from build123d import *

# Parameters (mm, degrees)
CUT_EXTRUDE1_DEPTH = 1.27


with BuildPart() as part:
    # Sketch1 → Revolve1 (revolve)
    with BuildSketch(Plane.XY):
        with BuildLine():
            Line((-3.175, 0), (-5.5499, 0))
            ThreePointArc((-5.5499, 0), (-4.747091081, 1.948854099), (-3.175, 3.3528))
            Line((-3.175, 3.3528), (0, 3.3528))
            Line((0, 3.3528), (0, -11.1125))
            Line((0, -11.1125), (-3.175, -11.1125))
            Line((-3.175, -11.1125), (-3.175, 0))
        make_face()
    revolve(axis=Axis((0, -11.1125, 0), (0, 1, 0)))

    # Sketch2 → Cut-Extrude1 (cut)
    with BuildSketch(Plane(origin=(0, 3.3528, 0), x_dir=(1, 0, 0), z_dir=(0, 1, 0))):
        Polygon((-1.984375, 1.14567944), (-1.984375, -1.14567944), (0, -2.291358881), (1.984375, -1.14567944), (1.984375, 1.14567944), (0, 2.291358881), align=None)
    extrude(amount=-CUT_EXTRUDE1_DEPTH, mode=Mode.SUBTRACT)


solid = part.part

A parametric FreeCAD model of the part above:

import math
import FreeCAD as App
import Part
import Sketcher
from FreeCAD import Vector
Q = App.Units.Quantity

doc = App.newDocument("Part")
params = doc.addObject("Spreadsheet::Sheet", "Params")
for row, (alias, value) in enumerate([
    ("sketch1_width", "0.125 in"),
    ("sketch1_height", "0.4375 in"),
    ("revolution_angle", "360 deg"),
    ("pocket1_length", "0.05 in"),
], start=1):
    params.set(f"A{row}", alias)
    params.set(f"B{row}", "=" + value)
    params.setAlias(f"B{row}", alias)

body = doc.addObject("PartDesign::Body", "Body")

# Sketch on XY plane
sketch1 = body.newObject("Sketcher::SketchObject", "Sketch")
sketch1.AttachmentSupport = (doc.getObject("XY_Plane"), [""])
sketch1.MapMode = "FlatFace"
sketch1.addGeometry(Part.LineSegment(Vector(-5.5, 0, 0), Vector(-3.2, 0, 0)), False)
sketch1.addGeometry(Part.LineSegment(Vector(-3.2, 0, 0), Vector(-3.2, -11.1, 0)), False)
sketch1.addGeometry(Part.LineSegment(Vector(-3.2, -11.1, 0), Vector(0, -11.1, 0)), False)
sketch1.addGeometry(Part.LineSegment(Vector(0, -11.1, 0), Vector(0, 3.4, 0)), False)
sketch1.addGeometry(Part.LineSegment(Vector(0, 3.4, 0), Vector(-3.2, 3.4, 0)), False)
sketch1.addGeometry(Part.ArcOfCircle(Part.Circle(Vector(-0.9, -0.8, 0), Vector(0, 0, 1), 4.7), math.radians(119), math.radians(171)), False)
sketch1.addConstraint(Sketcher.Constraint("Coincident", 0, 2, 1, 1))
sketch1.addConstraint(Sketcher.Constraint("Coincident", 1, 2, 2, 1))
sketch1.addConstraint(Sketcher.Constraint("Coincident", 2, 2, 3, 1))
sketch1.addConstraint(Sketcher.Constraint("Coincident", 3, 2, 4, 1))
sketch1.addConstraint(Sketcher.Constraint("Coincident", 4, 2, 5, 1))
sketch1.addConstraint(Sketcher.Constraint("Coincident", 5, 2, 0, 1))
sketch1.addConstraint(Sketcher.Constraint("Horizontal", 0))
sketch1.addConstraint(Sketcher.Constraint("Vertical", 1))
sketch1.addConstraint(Sketcher.Constraint("Horizontal", 2))
sketch1.addConstraint(Sketcher.Constraint("Vertical", 3))
sketch1.addConstraint(Sketcher.Constraint("Horizontal", 4))
sketch1.addConstraint(Sketcher.Constraint("PointOnObject", 0, 2, -1))
sketch1.addConstraint(Sketcher.Constraint("PointOnObject", 2, 2, -2))
sketch1.addConstraint(Sketcher.Constraint("Vertical", 1, 2, 4, 2))
sketch1.addConstraint(Sketcher.Constraint("DistanceX", 2, 1, 2, 2, Q("0.125 in")))
sketch1.addConstraint(Sketcher.Constraint("DistanceY", 1, 2, 1, 1, Q("0.4375 in")))
sketch1.addConstraint(Sketcher.Constraint("DistanceX", 0, 1, 0, 2, Q("0.0935 in")))
sketch1.addConstraint(Sketcher.Constraint("DistanceY", 3, 1, 3, 2, Q("0.5695 in")))
sketch1.addConstraint(Sketcher.Constraint("Radius", 5, Q("4.712467 mm")))
sketch1.setExpression("Constraints[14]", "Params.sketch1_width")
sketch1.setExpression("Constraints[15]", "Params.sketch1_height")
revolution = body.newObject("PartDesign::Revolution", "Revolution")
revolution.Profile = sketch1
revolution.ReferenceAxis = (sketch1, ["V_Axis"])
revolution.setExpression("Angle", "Params.revolution_angle")

# Sketch on XZ plane
sketch2 = body.newObject("Sketcher::SketchObject", "Sketch001")
sketch2.AttachmentSupport = (doc.getObject("XZ_Plane"), [""])
sketch2.MapMode = "FlatFace"
sketch2.AttachmentOffset = App.Placement(Vector(0, 0, -0.132 * 25.4), App.Rotation())
sketch2.addGeometry(Part.LineSegment(Vector(-2, -1.1, 0), Vector(-2, 1.1, 0)), False)
sketch2.addGeometry(Part.LineSegment(Vector(-2, 1.1, 0), Vector(0, 2.3, 0)), False)
sketch2.addGeometry(Part.LineSegment(Vector(0, 2.3, 0), Vector(2, 1.1, 0)), False)
sketch2.addGeometry(Part.LineSegment(Vector(2, 1.1, 0), Vector(2, -1.1, 0)), False)
sketch2.addGeometry(Part.LineSegment(Vector(2, -1.1, 0), Vector(0, -2.3, 0)), False)
sketch2.addGeometry(Part.LineSegment(Vector(0, -2.3, 0), Vector(-2, -1.1, 0)), False)
sketch2.addConstraint(Sketcher.Constraint("Coincident", 0, 2, 1, 1))
sketch2.addConstraint(Sketcher.Constraint("Coincident", 1, 2, 2, 1))
sketch2.addConstraint(Sketcher.Constraint("Coincident", 2, 2, 3, 1))
sketch2.addConstraint(Sketcher.Constraint("Coincident", 3, 2, 4, 1))
sketch2.addConstraint(Sketcher.Constraint("Coincident", 4, 2, 5, 1))
sketch2.addConstraint(Sketcher.Constraint("Coincident", 5, 2, 0, 1))
sketch2.addConstraint(Sketcher.Constraint("Vertical", 0))
sketch2.addConstraint(Sketcher.Constraint("Vertical", 3))
sketch2.addConstraint(Sketcher.Constraint("Symmetric", 0, 2, 3, 2, -1, 1))
sketch2.addConstraint(Sketcher.Constraint("Symmetric", 1, 2, 4, 2, -1, 1))
sketch2.addConstraint(Sketcher.Constraint("PointOnObject", 1, 2, -2))
sketch2.addConstraint(Sketcher.Constraint("Parallel", 2, 5))
sketch2.addConstraint(Sketcher.Constraint("Horizontal", 0, 2, 2, 2))
sketch2.addConstraint(Sketcher.Constraint("Angle", 1, Q("30 deg")))
sketch2.addConstraint(Sketcher.Constraint("DistanceX", 0, 2, -1, 1, Q("0.078125 in")))
sketch2.addConstraint(Sketcher.Constraint("DistanceY", 0, 1, 0, 2, Q("2.291359 mm")))
pocket1 = body.newObject("PartDesign::Pocket", "Pocket")
pocket1.Profile = sketch2
pocket1.setExpression("Length", "Params.pocket1_length")
pocket1.Reversed = True

doc.recompute()
